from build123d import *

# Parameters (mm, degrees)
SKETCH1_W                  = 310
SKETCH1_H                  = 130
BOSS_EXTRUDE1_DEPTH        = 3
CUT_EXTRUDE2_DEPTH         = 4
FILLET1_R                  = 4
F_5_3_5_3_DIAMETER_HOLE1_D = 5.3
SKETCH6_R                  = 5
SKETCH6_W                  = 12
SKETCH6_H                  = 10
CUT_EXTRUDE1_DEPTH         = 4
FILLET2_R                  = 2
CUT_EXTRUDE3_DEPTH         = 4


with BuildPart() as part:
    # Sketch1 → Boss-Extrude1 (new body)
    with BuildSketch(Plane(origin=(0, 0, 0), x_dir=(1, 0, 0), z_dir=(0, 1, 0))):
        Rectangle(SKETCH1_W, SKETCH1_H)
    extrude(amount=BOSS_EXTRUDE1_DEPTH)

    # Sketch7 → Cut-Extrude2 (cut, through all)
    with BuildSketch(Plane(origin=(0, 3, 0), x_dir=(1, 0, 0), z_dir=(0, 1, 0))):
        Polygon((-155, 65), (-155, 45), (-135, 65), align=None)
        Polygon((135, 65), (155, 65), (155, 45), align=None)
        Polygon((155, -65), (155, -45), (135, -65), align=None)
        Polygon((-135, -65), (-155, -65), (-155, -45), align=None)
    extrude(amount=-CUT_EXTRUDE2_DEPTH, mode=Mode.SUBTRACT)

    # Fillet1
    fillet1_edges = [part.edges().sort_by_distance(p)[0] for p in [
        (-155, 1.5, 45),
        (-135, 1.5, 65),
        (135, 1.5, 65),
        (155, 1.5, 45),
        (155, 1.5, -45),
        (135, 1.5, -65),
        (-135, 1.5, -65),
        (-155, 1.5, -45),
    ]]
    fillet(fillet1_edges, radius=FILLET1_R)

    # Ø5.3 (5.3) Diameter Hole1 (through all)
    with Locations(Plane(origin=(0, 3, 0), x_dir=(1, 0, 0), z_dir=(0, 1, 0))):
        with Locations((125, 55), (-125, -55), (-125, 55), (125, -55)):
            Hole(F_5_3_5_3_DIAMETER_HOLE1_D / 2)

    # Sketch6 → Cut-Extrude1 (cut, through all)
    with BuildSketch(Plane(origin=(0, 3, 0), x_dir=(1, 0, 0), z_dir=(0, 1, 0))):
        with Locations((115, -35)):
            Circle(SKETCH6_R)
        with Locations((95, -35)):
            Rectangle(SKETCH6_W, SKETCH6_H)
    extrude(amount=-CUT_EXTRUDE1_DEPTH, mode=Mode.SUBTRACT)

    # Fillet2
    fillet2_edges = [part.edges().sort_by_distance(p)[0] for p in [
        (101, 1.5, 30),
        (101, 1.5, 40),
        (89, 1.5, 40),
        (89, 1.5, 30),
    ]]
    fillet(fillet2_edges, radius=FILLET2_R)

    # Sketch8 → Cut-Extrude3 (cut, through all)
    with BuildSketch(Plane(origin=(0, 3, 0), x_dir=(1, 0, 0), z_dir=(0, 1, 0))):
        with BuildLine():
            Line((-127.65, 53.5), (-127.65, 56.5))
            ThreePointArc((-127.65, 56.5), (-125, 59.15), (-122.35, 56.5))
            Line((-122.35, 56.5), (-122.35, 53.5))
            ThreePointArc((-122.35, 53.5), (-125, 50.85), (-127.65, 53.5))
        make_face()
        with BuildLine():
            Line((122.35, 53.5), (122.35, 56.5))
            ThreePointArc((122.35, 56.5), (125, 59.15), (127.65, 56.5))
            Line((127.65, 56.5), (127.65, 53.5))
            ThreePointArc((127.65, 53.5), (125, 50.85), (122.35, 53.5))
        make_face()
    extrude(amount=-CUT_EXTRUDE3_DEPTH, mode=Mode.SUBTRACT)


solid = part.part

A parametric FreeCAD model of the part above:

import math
import FreeCAD as App
import Part
import Sketcher
from FreeCAD import Vector


def edges_at(feature, points):
    """Names of the edges that pass closest to the given points."""
    edges = feature.Shape.Edges
    near = lambda p: min(range(len(edges)), key=lambda i: edges[i].distToShape(Part.Vertex(*p))[0])
    return sorted({f"Edge{near(p) + 1}" for p in points})


def add_polygon(sketch, points):
    """Adds a closed chain of lines whose ends are joined by coincident constraints."""
    first, n = sketch.GeometryCount, len(points)
    for a, b in zip(points, points[1:] + points[:1]):
        sketch.addGeometry(Part.LineSegment(App.Vector(*a, 0), App.Vector(*b, 0)), False)
    for i in range(n):
        sketch.addConstraint(Sketcher.Constraint("Coincident", first + i, 2, first + (i + 1) % n, 1))

doc = App.newDocument("Part")
params = doc.addObject("Spreadsheet::Sheet", "Params")
for row, (alias, value) in enumerate([
    ("sketch1_width", "310 mm"),
    ("sketch1_height", "130 mm"),
    ("pad1_length", "3 mm"),
    ("sketch2_width", "20 mm"),
    ("fillet_radius", "4 mm"),
    ("sketch3_diameter", "5.3 mm"),
    ("hole_diameter", "5.3 mm"),
    ("sketch4_diameter", "10 mm"),
    ("sketch4_width", "12 mm"),
    ("sketch4_height", "10 mm"),
    ("fillet2_radius", "2 mm"),
    ("sketch5_height", "3 mm"),
    ("sketch5_radius", "2.65 mm"),
], start=1):
    params.set(f"A{row}", alias)
    params.set(f"B{row}", "=" + value)
    params.setAlias(f"B{row}", alias)

body = doc.addObject("PartDesign::Body", "Body")

# Sketch on XZ plane
sketch1 = body.newObject("Sketcher::SketchObject", "Sketch")
sketch1.AttachmentSupport = (doc.getObject("XZ_Plane"), [""])
sketch1.MapMode = "FlatFace"
add_polygon(sketch1, [(-155, -65), (-155, 65), (155, 65), (155, -65)])  # lines 0-3
sketch1.addConstraint(Sketcher.Constraint("Vertical", 0))
sketch1.addConstraint(Sketcher.Constraint("Horizontal", 1))
sketch1.addConstraint(Sketcher.Constraint("Vertical", 2))
sketch1.addConstraint(Sketcher.Constraint("Horizontal", 3))
sketch1.addConstraint(Sketcher.Constraint("Symmetric", 0, 2, 2, 2, -1, 1))
sketch1.addConstraint(Sketcher.Constraint("DistanceX", 1, 1, 1, 2, 310.0))
sketch1.addConstraint(Sketcher.Constraint("DistanceY", 0, 1, 0, 2, 130.0))
sketch1.setExpression("Constraints[9]", "Params.sketch1_width")
sketch1.setExpression("Constraints[10]", "Params.sketch1_height")
pad1 = body.newObject("PartDesign::Pad", "Pad")
pad1.Profile = sketch1
pad1.setExpression("Length", "Params.pad1_length")
pad1.Reversed = True

# Sketch on XZ plane
sketch2 = body.newObject("Sketcher::SketchObject", "Sketch001")
sketch2.AttachmentSupport = (doc.getObject("XZ_Plane"), [""])
sketch2.MapMode = "FlatFace"
sketch2.AttachmentOffset = App.Placement(Vector(0, 0, -3), App.Rotation())
add_polygon(sketch2, [(-155, -65), (-155, -45), (-135, -65)])  # lines 0-2
add_polygon(sketch2, [(155, -65), (135, -65), (155, -45)])  # lines 3-5
add_polygon(sketch2, [(155, 65), (155, 45), (135, 65)])  # lines 6-8
add_polygon(sketch2, [(-155, 65), (-135, 65), (-155, 45)])  # lines 9-11
sketch2.addConstraint(Sketcher.Constraint("Vertical", 0))
sketch2.addConstraint(Sketcher.Constraint("Horizontal", 2))
sketch2.addConstraint(Sketcher.Constraint("Horizontal", 3))
sketch2.addConstraint(Sketcher.Constraint("Vertical", 5))
sketch2.addConstraint(Sketcher.Constraint("Vertical", 6))
sketch2.addConstraint(Sketcher.Constraint("Horizontal", 8))
sketch2.addConstraint(Sketcher.Constraint("Horizontal", 9))
sketch2.addConstraint(Sketcher.Constraint("Vertical", 11))
sketch2.addConstraint(Sketcher.Constraint("Symmetric", 0, 2, 6, 2, -1, 1))
sketch2.addConstraint(Sketcher.Constraint("Symmetric", 1, 2, 7, 2, -1, 1))
sketch2.addConstraint(Sketcher.Constraint("Symmetric", 3, 2, 9, 2, -1, 1))
sketch2.addConstraint(Sketcher.Constraint("Symmetric", 4, 2, 10, 2, -1, 1))
sketch2.addConstraint(Sketcher.Constraint("Symmetric", 1, 2, 3, 2, -2))
sketch2.addConstraint(Sketcher.Constraint("Symmetric", 0, 2, 4, 2, -2))
sketch2.addConstraint(Sketcher.Constraint("Perpendicular", 1, 4))
sketch2.addConstraint(Sketcher.Constraint("DistanceX", 2, 2, 2, 1, 20.0))
sketch2.addConstraint(Sketcher.Constraint("DistanceX", 0, 2, -1, 1, 155.0))
sketch2.addConstraint(Sketcher.Constraint("DistanceY", 0, 2, -1, 1, 45.0))
sketch2.setExpression("Constraints[27]", "Params.sketch2_width")
pocket1 = body.newObject("PartDesign::Pocket", "Pocket")
pocket1.Profile = sketch2
pocket1.Type = "ThroughAll"
pocket1.Reversed = True
doc.recompute()

fillet = body.newObject("PartDesign::Fillet", "Fillet")
fillet.Base = (pocket1, edges_at(pocket1, [
    (-155, 1.5, 45),
    (-135, 1.5, 65),
    (135, 1.5, 65),
    (155, 1.5, 45),
    (155, 1.5, -45),
    (135, 1.5, -65),
    (-135, 1.5, -65),
    (-155, 1.5, -45),
]))
fillet.setExpression("Radius", "Params.fillet_radius")

# Sketch on XZ plane
sketch3 = body.newObject("Sketcher::SketchObject", "Sketch002")
sketch3.AttachmentSupport = (doc.getObject("XZ_Plane"), [""])
sketch3.MapMode = "FlatFace"
sketch3.AttachmentOffset = App.Placement(Vector(0, 0, -3), App.Rotation())
sketch3.addGeometry(Part.Circle(Vector(125, -55, 0), Vector(0, 0, 1), 2.6), False)
sketch3.addGeometry(Part.Circle(Vector(-125, 55, 0), Vector(0, 0, 1), 2.6), False)
sketch3.addGeometry(Part.Circle(Vector(-125, -55, 0), Vector(0, 0, 1), 2.6), False)
sketch3.addGeometry(Part.Circle(Vector(125, 55, 0), Vector(0, 0, 1), 2.6), False)
sketch3.addConstraint(Sketcher.Constraint("Equal", 0, 1))
sketch3.addConstraint(Sketcher.Constraint("Equal", 1, 2))
sketch3.addConstraint(Sketcher.Constraint("Equal", 2, 3))
sketch3.addConstraint(Sketcher.Constraint("Symmetric", 0, 3, 1, 3, -1, 1))
sketch3.addConstraint(Sketcher.Constraint("Symmetric", 2, 3, 3, 3, -1, 1))
sketch3.addConstraint(Sketcher.Constraint("Symmetric", 0, 3, 2, 3, -2))
sketch3.addConstraint(Sketcher.Constraint("Diameter", 0, 5.3))
sketch3.addConstraint(Sketcher.Constraint("DistanceX", -1, 1, 0, 3, 125.0))
sketch3.addConstraint(Sketcher.Constraint("DistanceY", 0, 3, -1, 1, 55.0))
sketch3.setExpression("Constraints[6]", "Params.sketch3_diameter")
doc.recompute()
hole = body.newObject("PartDesign::Hole", "Hole")
hole.Profile = sketch3
hole.ThreadType = "None"
hole.setExpression("Diameter", "Params.hole_diameter")
hole.DepthType = "ThroughAll"
hole.Reversed = True

# Sketch on XZ plane
sketch4 = body.newObject("Sketcher::SketchObject", "Sketch003")
sketch4.AttachmentSupport = (doc.getObject("XZ_Plane"), [""])
sketch4.MapMode = "FlatFace"
sketch4.AttachmentOffset = App.Placement(Vector(0, 0, -3), App.Rotation())
sketch4.addGeometry(Part.Circle(Vector(115, 35, 0), Vector(0, 0, 1), 5), False)  # 0
add_polygon(sketch4, [(89, 30), (89, 40), (101, 40), (101, 30)])  # lines 1-4
sketch4.addConstraint(Sketcher.Constraint("Vertical", 1))
sketch4.addConstraint(Sketcher.Constraint("Horizontal", 2))
sketch4.addConstraint(Sketcher.Constraint("Vertical", 3))
sketch4.addConstraint(Sketcher.Constraint("Horizontal", 4))
sketch4.addConstraint(Sketcher.Constraint("Diameter", 0, 10.0))
sketch4.addConstraint(Sketcher.Constraint("DistanceX", 2, 1, 2, 2, 12.0))
sketch4.addConstraint(Sketcher.Constraint("DistanceY", 1, 1, 1, 2, 10.0))
sketch4.addConstraint(Sketcher.Constraint("DistanceX", -1, 1, 0, 3, 115.0))
sketch4.addConstraint(Sketcher.Constraint("DistanceY", -1, 1, 0, 3, 35.0))
sketch4.addConstraint(Sketcher.Constraint("DistanceX", -1, 1, 1, 2, 89.0))
sketch4.addConstraint(Sketcher.Constraint("DistanceY", -1, 1, 1, 2, 40.0))
sketch4.setExpression("Constraints[8]", "Params.sketch4_diameter")
sketch4.setExpression("Constraints[9]", "Params.sketch4_width")
sketch4.setExpression("Constraints[10]", "Params.sketch4_height")
pocket2 = body.newObject("PartDesign::Pocket", "Pocket001")
pocket2.Profile = sketch4
pocket2.Type = "ThroughAll"
pocket2.Reversed = True
doc.recompute()

fillet2 = body.newObject("PartDesign::Fillet", "Fillet001")
fillet2.Base = (pocket2, edges_at(pocket2, [
    (101, 1.5, 30),
    (101, 1.5, 40),
    (89, 1.5, 40),
    (89, 1.5, 30),
]))
fillet2.setExpression("Radius", "Params.fillet2_radius")

# Sketch on XZ plane
sketch5 = body.newObject("Sketcher::SketchObject", "Sketch004")
sketch5.AttachmentSupport = (doc.getObject("XZ_Plane"), [""])
sketch5.MapMode = "FlatFace"
sketch5.AttachmentOffset = App.Placement(Vector(0, 0, -3), App.Rotation())
sketch5.addGeometry(Part.LineSegment(Vector(-127.7, -56.5, 0), Vector(-127.7, -53.5, 0)), False)
sketch5.addGeometry(Part.ArcOfCircle(Part.Circle(Vector(-125, -53.5, 0), Vector(0, 0, 1), 2.6), math.radians(0), math.radians(180)), False)
sketch5.addGeometry(Part.LineSegment(Vector(-122.3, -53.5, 0), Vector(-122.3, -56.5, 0)), False)
sketch5.addGeometry(Part.ArcOfCircle(Part.Circle(Vector(-125, -56.5, 0), Vector(0, 0, 1), 2.6), math.radians(180), math.radians(360)), False)
sketch5.addGeometry(Part.LineSegment(Vector(122.3, -56.5, 0), Vector(122.3, -53.5, 0)), False)
sketch5.addGeometry(Part.ArcOfCircle(Part.Circle(Vector(125, -53.5, 0), Vector(0, 0, 1), 2.6), math.radians(0), math.radians(180)), False)
sketch5.addGeometry(Part.LineSegment(Vector(127.7, -53.5, 0), Vector(127.7, -56.5, 0)), False)
sketch5.addGeometry(Part.ArcOfCircle(Part.Circle(Vector(125, -56.5, 0), Vector(0, 0, 1), 2.6), math.radians(180), math.radians(360)), False)
sketch5.addConstraint(Sketcher.Constraint("Tangent", 0, 2, 1, 2))
sketch5.addConstraint(Sketcher.Constraint("Tangent", 1, 1, 2, 1))
sketch5.addConstraint(Sketcher.Constraint("Tangent", 2, 2, 3, 2))
sketch5.addConstraint(Sketcher.Constraint("Tangent", 3, 1, 0, 1))
sketch5.addConstraint(Sketcher.Constraint("Tangent", 4, 2, 5, 2))
sketch5.addConstraint(Sketcher.Constraint("Tangent", 5, 1, 6, 1))
sketch5.addConstraint(Sketcher.Constraint("Tangent", 6, 2, 7, 2))
sketch5.addConstraint(Sketcher.Constraint("Tangent", 7, 1, 4, 1))
sketch5.addConstraint(Sketcher.Constraint("Vertical", 0))
sketch5.addConstraint(Sketcher.Constraint("Vertical", 2))
sketch5.addConstraint(Sketcher.Constraint("Vertical", 4))
sketch5.addConstraint(Sketcher.Constraint("Vertical", 6))
sketch5.addConstraint(Sketcher.Constraint("Equal", 3, 5))
sketch5.addConstraint(Sketcher.Constraint("Symmetric", 1, 3, 5, 3, -2))
sketch5.addConstraint(Sketcher.Constraint("Horizontal", 3, 3, 7, 3))
sketch5.addConstraint(Sketcher.Constraint("DistanceY", 0, 1, 0, 2, 3.0))
sketch5.addConstraint(Sketcher.Constraint("Radius", 1, 2.65))
sketch5.addConstraint(Sketcher.Constraint("DistanceX", 1, 3, -1, 1, 125.0))
sketch5.addConstraint(Sketcher.Constraint("DistanceY", 1, 3, -1, 1, 53.5))
sketch5.setExpression("Constraints[15]", "Params.sketch5_height")
sketch5.setExpression("Constraints[16]", "Params.sketch5_radius")
pocket3 = body.newObject("PartDesign::Pocket", "Pocket002")
pocket3.Profile = sketch5
pocket3.Type = "ThroughAll"
pocket3.Reversed = True

doc.recompute()
